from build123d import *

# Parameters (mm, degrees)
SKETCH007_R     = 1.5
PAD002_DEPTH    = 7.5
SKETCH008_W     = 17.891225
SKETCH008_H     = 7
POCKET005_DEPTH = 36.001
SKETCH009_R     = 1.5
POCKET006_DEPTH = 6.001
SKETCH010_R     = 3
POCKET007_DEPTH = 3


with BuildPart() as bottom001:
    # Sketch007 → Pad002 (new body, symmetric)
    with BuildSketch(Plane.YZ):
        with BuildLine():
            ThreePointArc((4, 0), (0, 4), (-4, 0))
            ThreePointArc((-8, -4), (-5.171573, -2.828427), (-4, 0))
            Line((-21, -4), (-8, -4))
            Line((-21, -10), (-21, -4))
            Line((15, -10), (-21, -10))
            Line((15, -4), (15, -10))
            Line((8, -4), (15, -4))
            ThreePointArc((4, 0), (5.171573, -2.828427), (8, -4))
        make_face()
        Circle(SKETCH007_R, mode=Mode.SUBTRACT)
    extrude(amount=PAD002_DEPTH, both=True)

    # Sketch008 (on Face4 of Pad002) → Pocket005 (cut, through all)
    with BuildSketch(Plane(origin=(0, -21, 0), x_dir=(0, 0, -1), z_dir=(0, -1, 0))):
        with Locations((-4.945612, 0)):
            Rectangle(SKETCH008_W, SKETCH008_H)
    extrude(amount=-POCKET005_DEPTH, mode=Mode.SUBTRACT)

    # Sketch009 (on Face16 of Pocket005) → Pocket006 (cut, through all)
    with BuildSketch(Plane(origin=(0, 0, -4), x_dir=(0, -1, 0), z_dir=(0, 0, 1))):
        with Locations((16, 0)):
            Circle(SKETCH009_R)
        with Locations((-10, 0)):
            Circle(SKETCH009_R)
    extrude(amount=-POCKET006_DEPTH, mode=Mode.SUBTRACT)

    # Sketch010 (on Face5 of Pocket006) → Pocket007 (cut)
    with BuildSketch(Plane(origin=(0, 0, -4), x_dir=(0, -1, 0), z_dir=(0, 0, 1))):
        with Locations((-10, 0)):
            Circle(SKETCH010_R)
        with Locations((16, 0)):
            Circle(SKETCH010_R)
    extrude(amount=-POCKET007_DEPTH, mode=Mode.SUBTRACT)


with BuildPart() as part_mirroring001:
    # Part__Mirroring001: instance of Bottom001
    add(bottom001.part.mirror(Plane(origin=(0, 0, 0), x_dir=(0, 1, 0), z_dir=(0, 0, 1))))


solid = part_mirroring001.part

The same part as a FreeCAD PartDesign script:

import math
import FreeCAD as App
import Part
import Sketcher


def add_polygon(sketch, points):
    """Adds a closed chain of lines whose ends are joined by coincident constraints."""
    first, n = sketch.GeometryCount, len(points)
    for a, b in zip(points, points[1:] + points[:1]):
        sketch.addGeometry(Part.LineSegment(App.Vector(*a, 0), App.Vector(*b, 0)), False)
    for i in range(n):
        sketch.addConstraint(Sketcher.Constraint("Coincident", first + i, 2, first + (i + 1) % n, 1))

doc = App.newDocument("Part")
body = doc.addObject("PartDesign::Body", "Body")

# Sketch on YZ plane
sketch1 = body.newObject("Sketcher::SketchObject", "Sketch")
sketch1.AttachmentSupport = (doc.getObject("YZ_Plane"), [""])
sketch1.MapMode = "FlatFace"
sketch1.addGeometry([
    Part.ArcOfCircle(Part.Circle(App.Vector(0, 0, 0), App.Vector(0, 0, 1), 4), math.radians(0), math.radians(180)),  # 0
    Part.ArcOfCircle(Part.Circle(App.Vector(-8, 0, 0), App.Vector(0, 0, 1), 4), math.radians(-90), math.radians(0)),  # 1
    Part.LineSegment(App.Vector(-8, -4, 0), App.Vector(-21, -4, 0)),  # 2
    Part.LineSegment(App.Vector(-21, -4, 0), App.Vector(-21, -10, 0)),  # 3
    Part.LineSegment(App.Vector(-21, -10, 0), App.Vector(15, -10, 0)),  # 4
    Part.LineSegment(App.Vector(15, -10, 0), App.Vector(15, -4, 0)),  # 5
    Part.LineSegment(App.Vector(15, -4, 0), App.Vector(8, -4, 0)),  # 6
    Part.ArcOfCircle(Part.Circle(App.Vector(8, 0, 0), App.Vector(0, 0, 1), 4), math.radians(-180), math.radians(-90)),  # 7
    Part.Circle(App.Vector(0, 0, 0), App.Vector(0, 0, 1), 1.5),  # 8
], False)
sketch1.addConstraint([
    Sketcher.Constraint("Tangent", 0, 2, 1, 2),
    Sketcher.Constraint("Tangent", 1, 1, 2, 1),
    Sketcher.Constraint("Coincident", 2, 2, 3, 1),
    Sketcher.Constraint("Coincident", 3, 2, 4, 1),
    Sketcher.Constraint("Coincident", 4, 2, 5, 1),
    Sketcher.Constraint("Coincident", 5, 2, 6, 1),
    Sketcher.Constraint("Tangent", 6, 2, 7, 2),
    Sketcher.Constraint("Tangent", 7, 1, 0, 1),
    Sketcher.Constraint("Horizontal", 2),
    Sketcher.Constraint("Vertical", 3),
    Sketcher.Constraint("Horizontal", 4),
    Sketcher.Constraint("Vertical", 5),
    Sketcher.Constraint("Horizontal", 6),
    Sketcher.Constraint("Coincident", 0, 3, -1, 1),
    Sketcher.Constraint("Coincident", 8, 3, -1, 1),
    Sketcher.Constraint("Equal", 0, 1),
    Sketcher.Constraint("Equal", 1, 7),
    Sketcher.Constraint("PointOnObject", 1, 3, -1),
    Sketcher.Constraint("PointOnObject", 7, 3, -1),
    Sketcher.Constraint("Diameter", 8, 3.0),
    Sketcher.Constraint("Radius", 0, 4.0),
    Sketcher.Constraint("DistanceX", 2, 2, 2, 1, 13.0),
    Sketcher.Constraint("DistanceX", 4, 1, 4, 2, 36.0),
    Sketcher.Constraint("DistanceY", 3, 2, 3, 1, 6.0),
])
pad1 = body.newObject("PartDesign::Pad", "Pad")
pad1.Profile = sketch1
pad1.Length = 15
pad1.Midplane = True

# Sketch on XZ plane
sketch2 = body.newObject("Sketcher::SketchObject", "Sketch001")
sketch2.AttachmentSupport = (doc.getObject("XZ_Plane"), [""])
sketch2.MapMode = "FlatFace"
sketch2.AttachmentOffset = App.Placement(App.Vector(0, 0, 21), App.Rotation())
add_polygon(sketch2, [(4, 14), (-4, 14), (-4, -4), (4, -4)])  # lines 0-3
sketch2.addConstraint([
    Sketcher.Constraint("Horizontal", 0),
    Sketcher.Constraint("Vertical", 1),
    Sketcher.Constraint("Horizontal", 2),
    Sketcher.Constraint("Vertical", 3),
    Sketcher.Constraint("DistanceX", 0, 2, 0, 1, 7.0),
    Sketcher.Constraint("DistanceY", 1, 2, -1, 1, 4.0),
    Sketcher.Constraint("DistanceX", 0, 2, -1, 1, 3.5),
    Sketcher.Constraint("DistanceY", 1, 2, 1, 1, 17.891225),
])
pocket1 = body.newObject("PartDesign::Pocket", "Pocket")
pocket1.Profile = sketch2
pocket1.Type = "ThroughAll"

# Sketch on XY plane
sketch3 = body.newObject("Sketcher::SketchObject", "Sketch002")
sketch3.AttachmentSupport = (doc.getObject("XY_Plane"), [""])
sketch3.MapMode = "FlatFace"
sketch3.AttachmentOffset = App.Placement(App.Vector(0, 0, -4), App.Rotation())
sketch3.addGeometry([
    Part.Circle(App.Vector(0, -16, 0), App.Vector(0, 0, 1), 1.5),
    Part.Circle(App.Vector(0, 10, 0), App.Vector(0, 0, 1), 1.5),
], False)
sketch3.addConstraint([
    Sketcher.Constraint("Equal", 0, 1),
    Sketcher.Constraint("PointOnObject", 0, 3, -2),
    Sketcher.Constraint("PointOnObject", 1, 3, -2),
    Sketcher.Constraint("Diameter", 0, 3.0),
    Sketcher.Constraint("DistanceY", 0, 3, -1, 1, 16.0),
    Sketcher.Constraint("DistanceY", -1, 1, 1, 3, 10.0),
])
pocket2 = body.newObject("PartDesign::Pocket", "Pocket001")
pocket2.Profile = sketch3
pocket2.Type = "ThroughAll"

# Sketch on XY plane
sketch4 = body.newObject("Sketcher::SketchObject", "Sketch003")
sketch4.AttachmentSupport = (doc.getObject("XY_Plane"), [""])
sketch4.MapMode = "FlatFace"
sketch4.AttachmentOffset = App.Placement(App.Vector(0, 0, -4), App.Rotation())
sketch4.addGeometry([
    Part.Circle(App.Vector(0, 10, 0), App.Vector(0, 0, 1), 3),
    Part.Circle(App.Vector(0, -16, 0), App.Vector(0, 0, 1), 3),
], False)
sketch4.addConstraint([
    Sketcher.Constraint("Equal", 0, 1),
    Sketcher.Constraint("PointOnObject", 0, 3, -2),
    Sketcher.Constraint("PointOnObject", 1, 3, -2),
    Sketcher.Constraint("Diameter", 0, 6.0),
    Sketcher.Constraint("DistanceY", -1, 1, 0, 3, 10.0),
    Sketcher.Constraint("DistanceY", 1, 3, -1, 1, 16.0),
])
pocket3 = body.newObject("PartDesign::Pocket", "Pocket002")
pocket3.Profile = sketch4
pocket3.Length = 3
body2 = doc.addObject("PartDesign::Body", "Body001")
doc.recompute()

mirroring = doc.addObject("Part::Mirroring", "Mirroring")
mirroring.Source = body
mirroring.Base = App.Vector(0, 0, 0)
mirroring.Normal = App.Vector(0, 0, 1)
body2.BaseFeature = mirroring
doc.recompute()
body.Visibility = False
mirroring.Visibility = False

doc.recompute()
